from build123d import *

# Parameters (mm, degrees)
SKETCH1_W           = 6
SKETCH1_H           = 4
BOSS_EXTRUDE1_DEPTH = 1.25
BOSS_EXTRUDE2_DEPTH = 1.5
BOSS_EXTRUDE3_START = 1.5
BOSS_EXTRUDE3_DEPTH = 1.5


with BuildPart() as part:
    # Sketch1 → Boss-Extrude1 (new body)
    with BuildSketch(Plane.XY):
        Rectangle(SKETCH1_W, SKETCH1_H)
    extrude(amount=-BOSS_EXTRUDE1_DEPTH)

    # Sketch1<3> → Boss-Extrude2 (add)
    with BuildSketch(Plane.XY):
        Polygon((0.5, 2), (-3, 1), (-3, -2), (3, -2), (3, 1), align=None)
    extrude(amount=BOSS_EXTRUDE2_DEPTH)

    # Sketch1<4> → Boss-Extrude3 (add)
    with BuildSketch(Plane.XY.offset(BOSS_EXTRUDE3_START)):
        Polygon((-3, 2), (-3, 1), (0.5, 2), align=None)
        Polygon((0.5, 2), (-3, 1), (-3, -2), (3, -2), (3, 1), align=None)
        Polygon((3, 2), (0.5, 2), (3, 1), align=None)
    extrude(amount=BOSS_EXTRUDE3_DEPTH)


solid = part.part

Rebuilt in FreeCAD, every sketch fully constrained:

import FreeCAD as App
import Part
import Sketcher
Q = App.Units.Quantity


def add_polygon(sketch, points):
    """Adds a closed chain of lines whose ends are joined by coincident constraints."""
    first, n = sketch.GeometryCount, len(points)
    for a, b in zip(points, points[1:] + points[:1]):
        sketch.addGeometry(Part.LineSegment(App.Vector(*a, 0), App.Vector(*b, 0)), False)
    for i in range(n):
        sketch.addConstraint(Sketcher.Constraint("Coincident", first + i, 2, first + (i + 1) % n, 1))

doc = App.newDocument("Part")
params = doc.addObject("Spreadsheet::Sheet", "Params")
for row, (alias, value) in enumerate([
    ("sketch1_width", "6 mm"),
    ("sketch1_height", "4 mm"),
    ("pad1_length", "1.25 mm"),
    ("sketch2_width", "6 mm"),
    ("sketch2_height", "3 mm"),
    ("pad2_length", "1.5 mm"),
    ("sketch3_width", "6 mm"),
    ("sketch3_height", "4 mm"),
    ("pad3_length", "1.5 mm"),
], start=1):
    params.set(f"A{row}", alias)
    params.set(f"B{row}", "=" + value)
    params.setAlias(f"B{row}", alias)

body = doc.addObject("PartDesign::Body", "Body")

# Sketch on XY plane
sketch1 = doc.addObject("Sketcher::SketchObject", "Sketch")
body.addObject(sketch1)
sketch1.AttachmentSupport = (doc.XY_Plane, [""])
sketch1.MapMode = "FlatFace"
add_polygon(sketch1, [(-3, 2), (-3, -2), (3, -2), (3, 2)])  # lines 0-3
sketch1.addConstraint(Sketcher.Constraint("Vertical", 0))
sketch1.addConstraint(Sketcher.Constraint("Horizontal", 1))
sketch1.addConstraint(Sketcher.Constraint("Vertical", 2))
sketch1.addConstraint(Sketcher.Constraint("Horizontal", 3))
sketch1.addConstraint(Sketcher.Constraint("Symmetric", 0, 2, 2, 2, -1, 1))
sketch1.addConstraint(Sketcher.Constraint("DistanceX", 1, 1, 1, 2, Q("6 mm")))
sketch1.addConstraint(Sketcher.Constraint("DistanceY", 0, 2, 0, 1, Q("4 mm")))
sketch1.setExpression("Constraints[9]", "Params.sketch1_width")
sketch1.setExpression("Constraints[10]", "Params.sketch1_height")
pad1 = doc.addObject("PartDesign::Pad", "Pad")
body.addObject(pad1)
pad1.Profile = sketch1
pad1.setExpression("Length", "Params.pad1_length")
pad1.Reversed = True

# Sketch on XY plane
sketch2 = doc.addObject("Sketcher::SketchObject", "Sketch001")
body.addObject(sketch2)
sketch2.AttachmentSupport = (doc.XY_Plane, [""])
sketch2.MapMode = "FlatFace"
add_polygon(sketch2, [(0.5, 2), (-3, 1), (-3, -2), (3, -2), (3, 1)])  # lines 0-4
sketch2.addConstraint(Sketcher.Constraint("Vertical", 1))
sketch2.addConstraint(Sketcher.Constraint("Horizontal", 2))
sketch2.addConstraint(Sketcher.Constraint("Vertical", 3))
sketch2.addConstraint(Sketcher.Constraint("Symmetric", 0, 2, 3, 2, -2))
sketch2.addConstraint(Sketcher.Constraint("DistanceX", 2, 1, 2, 2, Q("6 mm")))
sketch2.addConstraint(Sketcher.Constraint("DistanceY", 1, 2, 1, 1, Q("3 mm")))
sketch2.addConstraint(Sketcher.Constraint("DistanceY", -1, 1, 0, 2, Q("1 mm")))
sketch2.addConstraint(Sketcher.Constraint("DistanceY", -1, 1, 4, 2, Q("2 mm")))
sketch2.addConstraint(Sketcher.Constraint("DistanceX", -1, 1, 4, 2, Q("0.5 mm")))
sketch2.setExpression("Constraints[9]", "Params.sketch2_width")
sketch2.setExpression("Constraints[10]", "Params.sketch2_height")
pad2 = doc.addObject("PartDesign::Pad", "Pad001")
body.addObject(pad2)
pad2.Profile = sketch2
pad2.setExpression("Length", "Params.pad2_length")

# Sketch on XY plane
sketch3 = doc.addObject("Sketcher::SketchObject", "Sketch002")
body.addObject(sketch3)
sketch3.AttachmentSupport = (doc.XY_Plane, [""])
sketch3.MapMode = "FlatFace"
sketch3.AttachmentOffset = App.Placement(App.Vector(0, 0, 1.5), App.Rotation())
add_polygon(sketch3, [(-3, 2), (-3, -2), (3, -2), (3, 2)])  # lines 0-3
sketch3.addConstraint(Sketcher.Constraint("Vertical", 0))
sketch3.addConstraint(Sketcher.Constraint("Horizontal", 1))
sketch3.addConstraint(Sketcher.Constraint("Vertical", 2))
sketch3.addConstraint(Sketcher.Constraint("Horizontal", 3))
sketch3.addConstraint(Sketcher.Constraint("Symmetric", 0, 2, 2, 2, -1, 1))
sketch3.addConstraint(Sketcher.Constraint("DistanceX", 1, 1, 1, 2, Q("6 mm")))
sketch3.addConstraint(Sketcher.Constraint("DistanceY", 0, 2, 0, 1, Q("4 mm")))
sketch3.setExpression("Constraints[9]", "Params.sketch3_width")
sketch3.setExpression("Constraints[10]", "Params.sketch3_height")
pad3 = doc.addObject("PartDesign::Pad", "Pad002")
body.addObject(pad3)
pad3.Profile = sketch3
pad3.setExpression("Length", "Params.pad3_length")

doc.recompute()
